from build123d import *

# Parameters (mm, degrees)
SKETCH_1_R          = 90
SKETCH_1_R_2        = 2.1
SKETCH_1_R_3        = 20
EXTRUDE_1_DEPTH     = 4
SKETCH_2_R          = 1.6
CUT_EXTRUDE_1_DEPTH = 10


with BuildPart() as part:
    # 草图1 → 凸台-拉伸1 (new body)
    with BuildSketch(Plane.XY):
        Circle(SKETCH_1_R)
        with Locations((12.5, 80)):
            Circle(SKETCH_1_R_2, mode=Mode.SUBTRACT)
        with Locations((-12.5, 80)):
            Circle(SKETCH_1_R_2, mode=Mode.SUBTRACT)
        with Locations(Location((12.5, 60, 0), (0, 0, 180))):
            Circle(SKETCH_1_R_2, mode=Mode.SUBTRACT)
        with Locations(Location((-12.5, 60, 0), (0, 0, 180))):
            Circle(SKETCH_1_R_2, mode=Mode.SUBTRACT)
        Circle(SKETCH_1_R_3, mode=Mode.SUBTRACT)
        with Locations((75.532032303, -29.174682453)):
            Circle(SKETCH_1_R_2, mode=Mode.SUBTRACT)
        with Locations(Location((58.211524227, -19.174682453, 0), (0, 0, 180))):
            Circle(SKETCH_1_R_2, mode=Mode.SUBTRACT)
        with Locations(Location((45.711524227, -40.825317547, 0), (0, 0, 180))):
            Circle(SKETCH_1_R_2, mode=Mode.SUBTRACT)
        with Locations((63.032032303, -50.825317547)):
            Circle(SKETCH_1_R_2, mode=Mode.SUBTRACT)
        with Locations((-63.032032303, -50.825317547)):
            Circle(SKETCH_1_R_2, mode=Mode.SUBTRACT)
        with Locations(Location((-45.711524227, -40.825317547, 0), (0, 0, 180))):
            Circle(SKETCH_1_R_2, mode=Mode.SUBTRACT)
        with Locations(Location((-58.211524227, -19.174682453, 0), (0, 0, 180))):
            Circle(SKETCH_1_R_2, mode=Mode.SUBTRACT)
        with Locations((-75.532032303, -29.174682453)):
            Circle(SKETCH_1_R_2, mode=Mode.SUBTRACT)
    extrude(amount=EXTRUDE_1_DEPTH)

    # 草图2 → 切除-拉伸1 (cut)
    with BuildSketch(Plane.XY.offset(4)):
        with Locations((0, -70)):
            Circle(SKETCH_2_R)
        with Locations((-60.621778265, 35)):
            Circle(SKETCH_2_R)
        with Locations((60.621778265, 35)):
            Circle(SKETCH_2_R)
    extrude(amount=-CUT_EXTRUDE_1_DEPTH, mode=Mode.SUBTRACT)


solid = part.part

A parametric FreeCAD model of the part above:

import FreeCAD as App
import Part
import Sketcher
Q = App.Units.Quantity

doc = App.newDocument("Part")
body = doc.addObject("PartDesign::Body", "Body")

sketch1 = body.newObject("Sketcher::SketchObject", "Sketch")
sketch1.AttachmentSupport = (doc.getObject("XY_Plane"), [""])
sketch1.MapMode = "FlatFace"
sketch1.addGeometry([
    Part.Circle(App.Vector(0, 0, 0), App.Vector(0, 0, 1), 90),
    Part.Circle(App.Vector(-63, -50.8, 0), App.Vector(0, 0, 1), 2.1),
    Part.Circle(App.Vector(-45.7, -40.8, 0), App.Vector(0, 0, 1), 2.1),
    Part.Circle(App.Vector(-75.5, -29.2, 0), App.Vector(0, 0, 1), 2.1),
    Part.Circle(App.Vector(-58.2, -19.2, 0), App.Vector(0, 0, 1), 2.1),
    Part.Circle(App.Vector(45.7, -40.8, 0), App.Vector(0, 0, 1), 2.1),
    Part.Circle(App.Vector(63, -50.8, 0), App.Vector(0, 0, 1), 2.1),
    Part.Circle(App.Vector(58.2, -19.2, 0), App.Vector(0, 0, 1), 2.1),
    Part.Circle(App.Vector(75.5, -29.2, 0), App.Vector(0, 0, 1), 2.1),
    Part.Circle(App.Vector(0, 0, 0), App.Vector(0, 0, 1), 20),
    Part.Circle(App.Vector(-12.5, 60, 0), App.Vector(0, 0, 1), 2.1),
    Part.Circle(App.Vector(-12.5, 80, 0), App.Vector(0, 0, 1), 2.1),
    Part.Circle(App.Vector(12.5, 60, 0), App.Vector(0, 0, 1), 2.1),
    Part.Circle(App.Vector(12.5, 80, 0), App.Vector(0, 0, 1), 2.1),
], False)
sketch1.addConstraint([
    Sketcher.Constraint("Coincident", 0, 3, -1, 1),
    Sketcher.Constraint("Coincident", 9, 3, -1, 1),
    Sketcher.Constraint("Equal", 1, 2),
    Sketcher.Constraint("Equal", 2, 3),
    Sketcher.Constraint("Equal", 3, 4),
    Sketcher.Constraint("Equal", 4, 5),
    Sketcher.Constraint("Equal", 5, 6),
    Sketcher.Constraint("Equal", 6, 7),
    Sketcher.Constraint("Equal", 7, 8),
    Sketcher.Constraint("Equal", 8, 10),
    Sketcher.Constraint("Equal", 10, 11),
    Sketcher.Constraint("Equal", 11, 12),
    Sketcher.Constraint("Equal", 12, 13),
    Sketcher.Constraint("Symmetric", 2, 3, 5, 3, -2),
    Sketcher.Constraint("Symmetric", 1, 3, 6, 3, -2),
    Sketcher.Constraint("Symmetric", 4, 3, 7, 3, -2),
    Sketcher.Constraint("Symmetric", 3, 3, 8, 3, -2),
    Sketcher.Constraint("Symmetric", 10, 3, 12, 3, -2),
    Sketcher.Constraint("Symmetric", 11, 3, 13, 3, -2),
    Sketcher.Constraint("Vertical", 10, 3, 11, 3),
    Sketcher.Constraint("Diameter", 0, Q("180 mm")),
    Sketcher.Constraint("Diameter", 9, Q("40 mm")),
    Sketcher.Constraint("Diameter", 1, Q("4.2 mm")),
    Sketcher.Constraint("DistanceY", -1, 1, 10, 3, Q("60 mm")),
    Sketcher.Constraint("DistanceY", -1, 1, 11, 3, Q("80 mm")),
    Sketcher.Constraint("DistanceY", 1, 3, 2, 3, Q("10 mm")),
    Sketcher.Constraint("DistanceY", 3, 3, 4, 3, Q("10 mm")),
    Sketcher.Constraint("DistanceX", 10, 3, 12, 3, Q("25 mm")),
    Sketcher.Constraint("DistanceX", 3, 3, 1, 3, Q("12.5 mm")),
    Sketcher.Constraint("DistanceX", 4, 3, 2, 3, Q("12.5 mm")),
    Sketcher.Constraint("DistanceX", 1, 3, 2, 3, Q("17.320508 mm")),
    Sketcher.Constraint("DistanceX", 2, 3, 5, 3, Q("91.423048 mm")),
    Sketcher.Constraint("DistanceY", 1, 3, -1, 1, Q("50.825318 mm")),
    Sketcher.Constraint("DistanceY", 3, 3, -1, 1, Q("29.174682 mm")),
])
pad1 = body.newObject("PartDesign::Pad", "Pad")
pad1.Profile = sketch1
pad1.Length = 4

sketch2 = body.newObject("Sketcher::SketchObject", "Sketch001")
sketch2.AttachmentSupport = (doc.getObject("XY_Plane"), [""])
sketch2.MapMode = "FlatFace"
sketch2.AttachmentOffset = App.Placement(App.Vector(0, 0, 4), App.Rotation())
sketch2.addGeometry([
    Part.Circle(App.Vector(0, -70, 0), App.Vector(0, 0, 1), 1.6),
    Part.Circle(App.Vector(-60.6, 35, 0), App.Vector(0, 0, 1), 1.6),
    Part.Circle(App.Vector(60.6, 35, 0), App.Vector(0, 0, 1), 1.6),
], False)
sketch2.addConstraint([
    Sketcher.Constraint("Equal", 0, 1),
    Sketcher.Constraint("Equal", 1, 2),
    Sketcher.Constraint("Symmetric", 1, 3, 2, 3, -2),
    Sketcher.Constraint("PointOnObject", 0, 3, -2),
    Sketcher.Constraint("Diameter", 0, Q("3.2 mm")),
    Sketcher.Constraint("DistanceY", 0, 3, -1, 1, Q("70 mm")),
    Sketcher.Constraint("DistanceY", -1, 1, 1, 3, Q("35 mm")),
    Sketcher.Constraint("DistanceX", 1, 3, -1, 1, Q("60.621778 mm")),
])
pocket1 = body.newObject("PartDesign::Pocket", "Pocket")
pocket1.Profile = sketch2
pocket1.Length = 10

doc.recompute()
